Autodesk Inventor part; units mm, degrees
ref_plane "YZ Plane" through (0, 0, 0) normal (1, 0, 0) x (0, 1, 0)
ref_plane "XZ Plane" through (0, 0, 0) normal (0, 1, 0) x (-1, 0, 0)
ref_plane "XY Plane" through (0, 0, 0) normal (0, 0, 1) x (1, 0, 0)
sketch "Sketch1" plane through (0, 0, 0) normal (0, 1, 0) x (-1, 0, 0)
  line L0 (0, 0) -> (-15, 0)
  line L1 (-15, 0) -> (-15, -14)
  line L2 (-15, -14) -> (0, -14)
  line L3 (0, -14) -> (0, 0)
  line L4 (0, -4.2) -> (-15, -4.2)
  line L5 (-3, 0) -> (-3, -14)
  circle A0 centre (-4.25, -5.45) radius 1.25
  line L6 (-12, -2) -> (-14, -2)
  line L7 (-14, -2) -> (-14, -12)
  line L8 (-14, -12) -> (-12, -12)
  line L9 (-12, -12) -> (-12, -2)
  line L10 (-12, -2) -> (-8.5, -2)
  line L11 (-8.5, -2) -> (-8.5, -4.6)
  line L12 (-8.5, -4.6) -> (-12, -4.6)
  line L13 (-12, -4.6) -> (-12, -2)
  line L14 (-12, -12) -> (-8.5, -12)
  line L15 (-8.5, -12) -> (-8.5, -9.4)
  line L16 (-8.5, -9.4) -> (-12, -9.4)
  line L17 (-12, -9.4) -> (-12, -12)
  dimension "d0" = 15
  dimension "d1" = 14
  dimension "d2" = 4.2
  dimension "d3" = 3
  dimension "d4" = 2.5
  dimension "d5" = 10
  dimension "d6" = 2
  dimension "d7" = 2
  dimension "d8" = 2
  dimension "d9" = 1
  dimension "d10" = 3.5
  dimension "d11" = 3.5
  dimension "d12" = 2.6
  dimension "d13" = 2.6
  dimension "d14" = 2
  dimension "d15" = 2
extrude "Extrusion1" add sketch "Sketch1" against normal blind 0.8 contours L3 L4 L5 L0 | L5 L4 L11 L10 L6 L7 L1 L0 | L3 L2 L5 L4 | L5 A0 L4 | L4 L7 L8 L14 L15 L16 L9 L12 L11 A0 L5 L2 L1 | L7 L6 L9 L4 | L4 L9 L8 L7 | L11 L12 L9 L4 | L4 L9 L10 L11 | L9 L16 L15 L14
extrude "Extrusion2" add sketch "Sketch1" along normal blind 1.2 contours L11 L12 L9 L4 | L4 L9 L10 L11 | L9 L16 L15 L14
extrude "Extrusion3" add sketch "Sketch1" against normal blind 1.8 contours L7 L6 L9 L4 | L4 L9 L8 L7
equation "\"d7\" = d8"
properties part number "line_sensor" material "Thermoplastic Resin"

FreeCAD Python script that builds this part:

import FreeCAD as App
import Part
import Sketcher
from FreeCAD import Vector

doc = App.newDocument("Part")
params = doc.addObject("Spreadsheet::Sheet", "Params")
for row, (alias, value) in enumerate([
    ("sketch1_diameter", "2.5 mm"),
    ("sketch1_width", "15 mm"),
    ("sketch1_height", "14 mm"),
    ("pad1_length", "0.8 mm"),
    ("sketch2_width", "3.5 mm"),
    ("sketch2_height", "2.6 mm"),
    ("pad2_length", "1.2 mm"),
    ("sketch3_width", "2 mm"),
    ("sketch3_height", "10 mm"),
    ("pad3_length", "1.8 mm"),
], start=1):
    params.set(f"A{row}", alias)
    params.set(f"B{row}", "=" + value)
    params.setAlias(f"B{row}", alias)

body = doc.addObject("PartDesign::Body", "Body")

# Sketch on XZ plane
sketch1 = body.newObject("Sketcher::SketchObject", "Sketch")
sketch1.AttachmentSupport = (doc.getObject("XZ_Plane"), [""])
sketch1.MapMode = "FlatFace"
sketch1.addGeometry([
    Part.LineSegment(Vector(0, 0, 0), Vector(15, 0, 0)),  # 0
    Part.LineSegment(Vector(15, 0, 0), Vector(15, -14, 0)),  # 1
    Part.LineSegment(Vector(15, -14, 0), Vector(0, -14, 0)),  # 2
    Part.LineSegment(Vector(0, -14, 0), Vector(0, 0, 0)),  # 3
    Part.Circle(Vector(4.2, -5.5, 0), Vector(0, 0, 1), 1.2),  # 4
], False)
sketch1.addConstraint([
    Sketcher.Constraint("Coincident", 0, 2, 1, 1),
    Sketcher.Constraint("Coincident", 1, 2, 2, 1),
    Sketcher.Constraint("Coincident", 2, 2, 3, 1),
    Sketcher.Constraint("Coincident", 3, 2, 0, 1),
    Sketcher.Constraint("Horizontal", 0),
    Sketcher.Constraint("Vertical", 1),
    Sketcher.Constraint("Horizontal", 2),
    Sketcher.Constraint("Vertical", 3),
    Sketcher.Constraint("Coincident", 3, 2, -1, 1),
    Sketcher.Constraint("Diameter", 4, 2.5),
    Sketcher.Constraint("DistanceX", 0, 1, 0, 2, 15.0),
    Sketcher.Constraint("DistanceY", 1, 2, 1, 1, 14.0),
    Sketcher.Constraint("DistanceX", -1, 1, 4, 3, 4.25),
    Sketcher.Constraint("DistanceY", 4, 3, -1, 1, 5.45),
])
sketch1.setExpression("Constraints[9]", "Params.sketch1_diameter")
sketch1.setExpression("Constraints[10]", "Params.sketch1_width")
sketch1.setExpression("Constraints[11]", "Params.sketch1_height")
pad1 = body.newObject("PartDesign::Pad", "Pad")
pad1.Profile = sketch1
pad1.setExpression("Length", "Params.pad1_length")

# Sketch on XZ plane
sketch2 = body.newObject("Sketcher::SketchObject", "Sketch001")
sketch2.AttachmentSupport = (doc.getObject("XZ_Plane"), [""])
sketch2.MapMode = "FlatFace"
sketch2.addGeometry([
    Part.LineSegment(Vector(8.5, -4.6, 0), Vector(8.5, -2, 0)),  # 0
    Part.LineSegment(Vector(8.5, -2, 0), Vector(12, -2, 0)),  # 1
    Part.LineSegment(Vector(12, -2, 0), Vector(12, -4.6, 0)),  # 2
    Part.LineSegment(Vector(12, -4.6, 0), Vector(8.5, -4.6, 0)),  # 3
    Part.LineSegment(Vector(12, -9.4, 0), Vector(12, -12, 0)),  # 4
    Part.LineSegment(Vector(12, -12, 0), Vector(8.5, -12, 0)),  # 5
    Part.LineSegment(Vector(8.5, -12, 0), Vector(8.5, -9.4, 0)),  # 6
    Part.LineSegment(Vector(8.5, -9.4, 0), Vector(12, -9.4, 0)),  # 7
], False)
sketch2.addConstraint([
    Sketcher.Constraint("Coincident", 0, 2, 1, 1),
    Sketcher.Constraint("Coincident", 1, 2, 2, 1),
    Sketcher.Constraint("Coincident", 2, 2, 3, 1),
    Sketcher.Constraint("Coincident", 3, 2, 0, 1),
    Sketcher.Constraint("Coincident", 4, 2, 5, 1),
    Sketcher.Constraint("Coincident", 5, 2, 6, 1),
    Sketcher.Constraint("Coincident", 6, 2, 7, 1),
    Sketcher.Constraint("Coincident", 7, 2, 4, 1),
    Sketcher.Constraint("Vertical", 0),
    Sketcher.Constraint("Horizontal", 1),
    Sketcher.Constraint("Vertical", 2),
    Sketcher.Constraint("Horizontal", 3),
    Sketcher.Constraint("Vertical", 4),
    Sketcher.Constraint("Horizontal", 5),
    Sketcher.Constraint("Vertical", 6),
    Sketcher.Constraint("Horizontal", 7),
    Sketcher.Constraint("Vertical", 2, 2, 4, 2),
    Sketcher.Constraint("Vertical", 3, 2, 5, 2),
    Sketcher.Constraint("Equal", 2, 4),
    Sketcher.Constraint("DistanceX", 1, 1, 1, 2, 3.5),
    Sketcher.Constraint("DistanceY", 0, 1, 0, 2, 2.6),
    Sketcher.Constraint("DistanceY", 0, 2, -1, 1, 2.0),
    Sketcher.Constraint("DistanceY", 4, 2, 1, 2, 10.0),
    Sketcher.Constraint("DistanceX", -1, 1, 1, 2, 12.0),
])
sketch2.setExpression("Constraints[19]", "Params.sketch2_width")
sketch2.setExpression("Constraints[20]", "Params.sketch2_height")
pad2 = body.newObject("PartDesign::Pad", "Pad001")
pad2.Profile = sketch2
pad2.setExpression("Length", "Params.pad2_length")
pad2.Reversed = True

# Sketch on XZ plane
sketch3 = body.newObject("Sketcher::SketchObject", "Sketch002")
sketch3.AttachmentSupport = (doc.getObject("XZ_Plane"), [""])
sketch3.MapMode = "FlatFace"
sketch3.addGeometry([
    Part.LineSegment(Vector(14, -2, 0), Vector(14, -12, 0)),
    Part.LineSegment(Vector(14, -12, 0), Vector(12, -12, 0)),
    Part.LineSegment(Vector(12, -12, 0), Vector(12, -2, 0)),
    Part.LineSegment(Vector(12, -2, 0), Vector(14, -2, 0)),
], False)
sketch3.addConstraint([
    Sketcher.Constraint("Coincident", 0, 2, 1, 1),
    Sketcher.Constraint("Coincident", 1, 2, 2, 1),
    Sketcher.Constraint("Coincident", 2, 2, 3, 1),
    Sketcher.Constraint("Coincident", 3, 2, 0, 1),
    Sketcher.Constraint("Vertical", 0),
    Sketcher.Constraint("Horizontal", 1),
    Sketcher.Constraint("Vertical", 2),
    Sketcher.Constraint("Horizontal", 3),
    Sketcher.Constraint("DistanceX", 1, 2, 1, 1, 2.0),
    Sketcher.Constraint("DistanceY", 0, 2, 0, 1, 10.0),
    Sketcher.Constraint("DistanceX", -1, 1, 0, 2, 14.0),
    Sketcher.Constraint("DistanceY", 2, 2, -1, 1, 2.0),
])
sketch3.setExpression("Constraints[8]", "Params.sketch3_width")
sketch3.setExpression("Constraints[9]", "Params.sketch3_height")
pad3 = body.newObject("PartDesign::Pad", "Pad002")
pad3.Profile = sketch3
pad3.setExpression("Length", "Params.pad3_length")

doc.recompute()
